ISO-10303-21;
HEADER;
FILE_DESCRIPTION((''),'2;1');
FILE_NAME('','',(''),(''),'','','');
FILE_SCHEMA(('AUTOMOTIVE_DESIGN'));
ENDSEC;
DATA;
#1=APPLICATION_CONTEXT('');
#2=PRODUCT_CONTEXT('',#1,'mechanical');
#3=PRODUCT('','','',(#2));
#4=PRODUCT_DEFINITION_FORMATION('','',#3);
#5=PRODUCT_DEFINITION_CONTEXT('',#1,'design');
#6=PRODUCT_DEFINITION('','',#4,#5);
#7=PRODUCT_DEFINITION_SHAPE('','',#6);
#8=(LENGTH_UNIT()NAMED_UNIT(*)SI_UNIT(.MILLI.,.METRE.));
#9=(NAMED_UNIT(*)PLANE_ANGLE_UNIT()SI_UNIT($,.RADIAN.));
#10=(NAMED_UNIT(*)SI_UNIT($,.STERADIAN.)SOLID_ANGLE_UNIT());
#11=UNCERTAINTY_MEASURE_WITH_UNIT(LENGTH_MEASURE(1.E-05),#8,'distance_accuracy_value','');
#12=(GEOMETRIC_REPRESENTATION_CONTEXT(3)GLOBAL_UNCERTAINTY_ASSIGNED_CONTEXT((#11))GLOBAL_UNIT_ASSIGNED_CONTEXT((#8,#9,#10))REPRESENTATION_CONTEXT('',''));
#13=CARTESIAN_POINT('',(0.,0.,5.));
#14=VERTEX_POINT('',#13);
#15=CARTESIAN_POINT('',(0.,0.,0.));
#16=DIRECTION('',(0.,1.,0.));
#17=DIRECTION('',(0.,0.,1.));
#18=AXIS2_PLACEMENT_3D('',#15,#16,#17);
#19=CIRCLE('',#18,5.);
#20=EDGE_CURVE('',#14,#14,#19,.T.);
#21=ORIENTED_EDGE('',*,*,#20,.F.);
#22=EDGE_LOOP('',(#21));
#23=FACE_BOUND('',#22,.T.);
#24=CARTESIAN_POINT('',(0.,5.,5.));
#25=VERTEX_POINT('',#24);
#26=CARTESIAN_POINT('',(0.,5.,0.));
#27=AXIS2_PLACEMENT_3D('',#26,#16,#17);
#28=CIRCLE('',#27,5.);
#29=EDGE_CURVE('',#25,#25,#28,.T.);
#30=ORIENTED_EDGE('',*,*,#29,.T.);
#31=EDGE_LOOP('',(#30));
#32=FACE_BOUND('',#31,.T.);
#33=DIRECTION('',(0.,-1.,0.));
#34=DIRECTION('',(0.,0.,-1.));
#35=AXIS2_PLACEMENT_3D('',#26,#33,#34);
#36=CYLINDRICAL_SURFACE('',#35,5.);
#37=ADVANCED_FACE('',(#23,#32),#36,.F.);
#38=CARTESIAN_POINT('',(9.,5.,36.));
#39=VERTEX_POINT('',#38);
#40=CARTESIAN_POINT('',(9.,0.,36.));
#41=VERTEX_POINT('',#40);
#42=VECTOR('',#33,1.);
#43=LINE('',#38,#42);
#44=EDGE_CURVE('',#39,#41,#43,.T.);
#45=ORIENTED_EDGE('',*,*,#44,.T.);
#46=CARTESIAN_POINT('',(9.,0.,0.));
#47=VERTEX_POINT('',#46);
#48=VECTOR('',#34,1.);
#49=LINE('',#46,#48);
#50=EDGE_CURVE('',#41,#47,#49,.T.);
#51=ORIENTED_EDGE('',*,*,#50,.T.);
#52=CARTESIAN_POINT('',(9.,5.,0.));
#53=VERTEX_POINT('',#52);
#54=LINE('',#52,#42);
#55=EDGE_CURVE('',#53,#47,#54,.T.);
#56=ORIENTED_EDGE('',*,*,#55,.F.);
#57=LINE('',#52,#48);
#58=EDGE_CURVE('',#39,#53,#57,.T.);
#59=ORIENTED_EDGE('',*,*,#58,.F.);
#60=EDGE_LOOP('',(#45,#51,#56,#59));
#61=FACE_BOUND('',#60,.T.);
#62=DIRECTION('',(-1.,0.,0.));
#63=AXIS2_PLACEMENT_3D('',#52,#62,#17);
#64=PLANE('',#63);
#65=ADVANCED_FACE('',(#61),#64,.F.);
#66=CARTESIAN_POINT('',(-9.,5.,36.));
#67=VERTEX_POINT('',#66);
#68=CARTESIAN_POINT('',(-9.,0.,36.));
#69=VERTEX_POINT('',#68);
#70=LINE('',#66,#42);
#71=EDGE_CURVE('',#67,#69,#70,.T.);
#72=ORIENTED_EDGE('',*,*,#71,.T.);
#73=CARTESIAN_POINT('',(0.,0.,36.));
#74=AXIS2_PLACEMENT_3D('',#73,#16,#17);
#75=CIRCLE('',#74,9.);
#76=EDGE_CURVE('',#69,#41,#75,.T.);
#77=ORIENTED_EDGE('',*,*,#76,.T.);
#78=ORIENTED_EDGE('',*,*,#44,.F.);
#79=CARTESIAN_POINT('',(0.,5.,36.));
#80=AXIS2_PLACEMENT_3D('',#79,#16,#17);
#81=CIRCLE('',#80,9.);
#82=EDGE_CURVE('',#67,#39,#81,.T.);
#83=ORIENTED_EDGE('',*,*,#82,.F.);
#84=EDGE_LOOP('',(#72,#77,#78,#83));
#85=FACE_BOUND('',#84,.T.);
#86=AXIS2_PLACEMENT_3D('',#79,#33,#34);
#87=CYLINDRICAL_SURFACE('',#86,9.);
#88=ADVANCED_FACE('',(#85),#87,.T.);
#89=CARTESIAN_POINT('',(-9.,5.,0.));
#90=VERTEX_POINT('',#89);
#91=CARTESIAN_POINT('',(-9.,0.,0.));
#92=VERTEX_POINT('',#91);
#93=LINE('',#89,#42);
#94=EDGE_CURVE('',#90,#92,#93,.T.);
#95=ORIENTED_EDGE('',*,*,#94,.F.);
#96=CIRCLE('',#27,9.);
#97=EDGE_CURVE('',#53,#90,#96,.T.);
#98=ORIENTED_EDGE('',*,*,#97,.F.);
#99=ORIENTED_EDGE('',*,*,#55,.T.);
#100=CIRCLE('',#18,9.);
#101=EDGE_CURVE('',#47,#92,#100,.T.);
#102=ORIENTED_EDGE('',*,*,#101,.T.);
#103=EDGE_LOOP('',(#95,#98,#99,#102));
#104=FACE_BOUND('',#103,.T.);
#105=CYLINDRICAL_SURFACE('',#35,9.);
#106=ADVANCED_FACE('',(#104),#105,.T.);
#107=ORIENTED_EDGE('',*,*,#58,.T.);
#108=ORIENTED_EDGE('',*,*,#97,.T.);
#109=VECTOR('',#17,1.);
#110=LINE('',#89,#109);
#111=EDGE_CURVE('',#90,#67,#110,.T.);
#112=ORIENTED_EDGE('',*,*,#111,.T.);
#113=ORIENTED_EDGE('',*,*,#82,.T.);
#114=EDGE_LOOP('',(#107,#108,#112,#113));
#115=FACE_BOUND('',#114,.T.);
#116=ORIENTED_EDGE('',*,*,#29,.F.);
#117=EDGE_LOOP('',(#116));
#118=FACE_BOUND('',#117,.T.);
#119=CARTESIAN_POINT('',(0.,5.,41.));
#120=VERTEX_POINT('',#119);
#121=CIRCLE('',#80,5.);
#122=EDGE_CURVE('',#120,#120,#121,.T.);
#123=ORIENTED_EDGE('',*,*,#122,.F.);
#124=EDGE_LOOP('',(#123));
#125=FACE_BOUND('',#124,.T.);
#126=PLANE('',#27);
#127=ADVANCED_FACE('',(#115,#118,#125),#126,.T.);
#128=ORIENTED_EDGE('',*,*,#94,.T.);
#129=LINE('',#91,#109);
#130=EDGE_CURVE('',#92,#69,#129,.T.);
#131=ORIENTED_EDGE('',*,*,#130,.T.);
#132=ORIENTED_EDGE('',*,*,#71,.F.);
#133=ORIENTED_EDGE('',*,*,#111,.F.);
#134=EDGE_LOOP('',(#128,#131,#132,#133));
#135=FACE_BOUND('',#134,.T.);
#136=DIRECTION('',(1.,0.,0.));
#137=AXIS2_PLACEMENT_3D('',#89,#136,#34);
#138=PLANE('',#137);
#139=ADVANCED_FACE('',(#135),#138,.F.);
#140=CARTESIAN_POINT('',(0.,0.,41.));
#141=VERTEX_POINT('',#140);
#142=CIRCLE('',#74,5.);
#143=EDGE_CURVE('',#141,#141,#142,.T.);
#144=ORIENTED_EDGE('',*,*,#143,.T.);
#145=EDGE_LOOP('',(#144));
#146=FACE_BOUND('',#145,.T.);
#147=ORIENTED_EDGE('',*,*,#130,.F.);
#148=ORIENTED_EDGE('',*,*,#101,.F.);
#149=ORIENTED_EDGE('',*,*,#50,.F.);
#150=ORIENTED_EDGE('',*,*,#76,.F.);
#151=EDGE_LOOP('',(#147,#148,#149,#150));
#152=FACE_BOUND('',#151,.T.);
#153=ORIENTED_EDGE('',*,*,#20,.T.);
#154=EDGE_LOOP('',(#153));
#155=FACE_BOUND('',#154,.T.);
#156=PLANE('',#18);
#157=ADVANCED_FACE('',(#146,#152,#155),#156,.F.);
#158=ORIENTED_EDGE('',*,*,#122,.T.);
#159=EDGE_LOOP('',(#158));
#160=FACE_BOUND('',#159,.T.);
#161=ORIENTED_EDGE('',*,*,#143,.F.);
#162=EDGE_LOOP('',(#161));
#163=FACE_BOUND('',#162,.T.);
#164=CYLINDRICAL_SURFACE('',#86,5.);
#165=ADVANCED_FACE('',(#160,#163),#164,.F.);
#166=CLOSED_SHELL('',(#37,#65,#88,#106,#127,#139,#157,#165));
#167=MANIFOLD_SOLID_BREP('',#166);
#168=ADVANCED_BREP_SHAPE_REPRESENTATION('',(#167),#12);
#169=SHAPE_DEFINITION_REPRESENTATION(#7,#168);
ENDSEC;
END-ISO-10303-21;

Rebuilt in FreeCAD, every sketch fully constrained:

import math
import FreeCAD as App
import Part
import Sketcher
Q = App.Units.Quantity

doc = App.newDocument("Part")
body = doc.addObject("PartDesign::Body", "Body")

sketch1 = body.newObject("Sketcher::SketchObject", "Sketch")
sketch1.AttachmentSupport = (doc.getObject("XZ_Plane"), [""])
sketch1.MapMode = "FlatFace"
sketch1.addGeometry([
    Part.LineSegment(App.Vector(9, 36, 0), App.Vector(9, 0, 0)),
    Part.ArcOfCircle(Part.Circle(App.Vector(0, 0, 0), App.Vector(0, 0, 1), 9), math.radians(180), math.radians(360)),
    Part.LineSegment(App.Vector(-9, 0, 0), App.Vector(-9, 36, 0)),
    Part.ArcOfCircle(Part.Circle(App.Vector(0, 36, 0), App.Vector(0, 0, 1), 9), math.radians(0), math.radians(180)),
    Part.Circle(App.Vector(0, 36, 0), App.Vector(0, 0, 1), 5),
    Part.Circle(App.Vector(0, 0, 0), App.Vector(0, 0, 1), 5),
], False)
sketch1.addConstraint([
    Sketcher.Constraint("Tangent", 0, 2, 1, 2),
    Sketcher.Constraint("Tangent", 1, 1, 2, 1),
    Sketcher.Constraint("Tangent", 2, 2, 3, 2),
    Sketcher.Constraint("Tangent", 3, 1, 0, 1),
    Sketcher.Constraint("Vertical", 0),
    Sketcher.Constraint("Vertical", 2),
    Sketcher.Constraint("Coincident", 1, 3, -1, 1),
    Sketcher.Constraint("Coincident", 5, 3, -1, 1),
    Sketcher.Constraint("Coincident", 4, 3, 3, 3),
    Sketcher.Constraint("Equal", 4, 5),
    Sketcher.Constraint("Diameter", 4, Q("10 mm")),
    Sketcher.Constraint("Radius", 1, Q("9 mm")),
    Sketcher.Constraint("DistanceY", 0, 2, 0, 1, Q("36 mm")),
])
pad1 = body.newObject("PartDesign::Pad", "Pad")
pad1.Profile = sketch1
pad1.Length = 5
pad1.Reversed = True

doc.recompute()
